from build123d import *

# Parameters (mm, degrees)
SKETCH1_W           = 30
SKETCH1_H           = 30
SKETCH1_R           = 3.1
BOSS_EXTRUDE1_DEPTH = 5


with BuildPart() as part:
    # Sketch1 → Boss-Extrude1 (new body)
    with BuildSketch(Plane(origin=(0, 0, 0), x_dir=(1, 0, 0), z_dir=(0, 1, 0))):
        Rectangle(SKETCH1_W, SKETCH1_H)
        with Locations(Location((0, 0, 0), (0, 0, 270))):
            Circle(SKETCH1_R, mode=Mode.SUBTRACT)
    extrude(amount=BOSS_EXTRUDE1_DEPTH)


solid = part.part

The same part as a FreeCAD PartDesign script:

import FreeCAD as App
import Part
import Sketcher
Q = App.Units.Quantity

doc = App.newDocument("Part")
params = doc.addObject("Spreadsheet::Sheet", "Params")
for row, (alias, value) in enumerate([
    ("sketch1_diameter", "6.2 mm"),
    ("sketch1_width", "30 mm"),
    ("pad1_length", "5 mm"),
], start=1):
    params.set(f"A{row}", alias)
    params.set(f"B{row}", "=" + value)
    params.setAlias(f"B{row}", alias)

body = doc.addObject("PartDesign::Body", "Body")

sketch1 = body.newObject("Sketcher::SketchObject", "Sketch")
sketch1.AttachmentSupport = (doc.getObject("XZ_Plane"), [""])
sketch1.MapMode = "FlatFace"
sketch1.addGeometry(Part.LineSegment(App.Vector(-15, -15, 0), App.Vector(-15, 15, 0)), False)
sketch1.addGeometry(Part.LineSegment(App.Vector(-15, 15, 0), App.Vector(15, 15, 0)), False)
sketch1.addGeometry(Part.LineSegment(App.Vector(15, 15, 0), App.Vector(15, -15, 0)), False)
sketch1.addGeometry(Part.LineSegment(App.Vector(15, -15, 0), App.Vector(-15, -15, 0)), False)
sketch1.addGeometry(Part.Circle(App.Vector(0, 0, 0), App.Vector(0, 0, 1), 3.1), False)
sketch1.addConstraint(Sketcher.Constraint("Coincident", 0, 2, 1, 1))
sketch1.addConstraint(Sketcher.Constraint("Coincident", 1, 2, 2, 1))
sketch1.addConstraint(Sketcher.Constraint("Coincident", 2, 2, 3, 1))
sketch1.addConstraint(Sketcher.Constraint("Coincident", 3, 2, 0, 1))
sketch1.addConstraint(Sketcher.Constraint("Vertical", 0))
sketch1.addConstraint(Sketcher.Constraint("Horizontal", 1))
sketch1.addConstraint(Sketcher.Constraint("Vertical", 2))
sketch1.addConstraint(Sketcher.Constraint("Horizontal", 3))
sketch1.addConstraint(Sketcher.Constraint("Coincident", 4, 3, -1, 1))
sketch1.addConstraint(Sketcher.Constraint("Symmetric", 0, 2, 2, 2, -1, 1))
sketch1.addConstraint(Sketcher.Constraint("Equal", 3, 0))
sketch1.addConstraint(Sketcher.Constraint("Diameter", 4, Q("6.2 mm")))
sketch1.addConstraint(Sketcher.Constraint("DistanceX", 1, 1, 1, 2, Q("30 mm")))
sketch1.setExpression("Constraints[11]", "Params.sketch1_diameter")
sketch1.setExpression("Constraints[12]", "Params.sketch1_width")
pad1 = body.newObject("PartDesign::Pad", "Pad")
pad1.Profile = sketch1
pad1.setExpression("Length", "Params.pad1_length")
pad1.Reversed = True

doc.recompute()
